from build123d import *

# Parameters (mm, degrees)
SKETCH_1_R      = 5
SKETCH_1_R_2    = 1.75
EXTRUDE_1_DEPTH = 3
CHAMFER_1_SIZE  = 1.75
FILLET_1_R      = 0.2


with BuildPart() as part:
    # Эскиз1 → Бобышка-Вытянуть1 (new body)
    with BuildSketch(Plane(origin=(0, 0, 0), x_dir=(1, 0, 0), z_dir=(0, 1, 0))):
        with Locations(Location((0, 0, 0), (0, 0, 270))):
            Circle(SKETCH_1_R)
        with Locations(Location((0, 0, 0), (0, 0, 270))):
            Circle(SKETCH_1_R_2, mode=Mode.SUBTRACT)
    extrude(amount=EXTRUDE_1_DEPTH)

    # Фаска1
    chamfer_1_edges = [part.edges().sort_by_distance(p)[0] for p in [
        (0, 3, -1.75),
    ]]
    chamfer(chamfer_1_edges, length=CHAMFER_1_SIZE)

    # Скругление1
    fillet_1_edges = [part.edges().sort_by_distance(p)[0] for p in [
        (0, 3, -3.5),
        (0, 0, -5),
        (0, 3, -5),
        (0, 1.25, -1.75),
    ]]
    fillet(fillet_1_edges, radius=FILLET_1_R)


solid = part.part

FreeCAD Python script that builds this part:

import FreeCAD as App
import Part
import Sketcher
Q = App.Units.Quantity


def edges_at(feature, points):
    """Names of the edges that pass closest to the given points."""
    edges = feature.Shape.Edges
    near = lambda p: min(range(len(edges)), key=lambda i: edges[i].distToShape(Part.Vertex(*p))[0])
    return sorted({f"Edge{near(p) + 1}" for p in points})

doc = App.newDocument("Part")
body = doc.addObject("PartDesign::Body", "Body")

sketch1 = body.newObject("Sketcher::SketchObject", "Sketch")
sketch1.AttachmentSupport = (doc.getObject("XZ_Plane"), [""])
sketch1.MapMode = "FlatFace"
sketch1.addGeometry([
    Part.Circle(App.Vector(0, 0, 0), App.Vector(0, 0, 1), 5),
    Part.Circle(App.Vector(0, 0, 0), App.Vector(0, 0, 1), 1.8),
], False)
sketch1.addConstraint([
    Sketcher.Constraint("Coincident", 0, 3, -1, 1),
    Sketcher.Constraint("Coincident", 1, 3, -1, 1),
    Sketcher.Constraint("Diameter", 0, Q("10 mm")),
    Sketcher.Constraint("Diameter", 1, Q("3.5 mm")),
])
pad1 = body.newObject("PartDesign::Pad", "Pad")
pad1.Profile = sketch1
pad1.Length = 3
pad1.Reversed = True
doc.recompute()

chamfer = body.newObject("PartDesign::Chamfer", "Chamfer")
chamfer.Base = (pad1, edges_at(pad1, [(0, 3, -1.75)]))
chamfer.Size = 1.75
doc.recompute()

fillet = body.newObject("PartDesign::Fillet", "Fillet")
fillet.Base = (chamfer, edges_at(chamfer, [
    (0, 3, -3.5),
    (0, 0, -5),
    (0, 3, -5),
    (0, 1.25, -1.75),
]))
fillet.Radius = 0.2

doc.recompute()
